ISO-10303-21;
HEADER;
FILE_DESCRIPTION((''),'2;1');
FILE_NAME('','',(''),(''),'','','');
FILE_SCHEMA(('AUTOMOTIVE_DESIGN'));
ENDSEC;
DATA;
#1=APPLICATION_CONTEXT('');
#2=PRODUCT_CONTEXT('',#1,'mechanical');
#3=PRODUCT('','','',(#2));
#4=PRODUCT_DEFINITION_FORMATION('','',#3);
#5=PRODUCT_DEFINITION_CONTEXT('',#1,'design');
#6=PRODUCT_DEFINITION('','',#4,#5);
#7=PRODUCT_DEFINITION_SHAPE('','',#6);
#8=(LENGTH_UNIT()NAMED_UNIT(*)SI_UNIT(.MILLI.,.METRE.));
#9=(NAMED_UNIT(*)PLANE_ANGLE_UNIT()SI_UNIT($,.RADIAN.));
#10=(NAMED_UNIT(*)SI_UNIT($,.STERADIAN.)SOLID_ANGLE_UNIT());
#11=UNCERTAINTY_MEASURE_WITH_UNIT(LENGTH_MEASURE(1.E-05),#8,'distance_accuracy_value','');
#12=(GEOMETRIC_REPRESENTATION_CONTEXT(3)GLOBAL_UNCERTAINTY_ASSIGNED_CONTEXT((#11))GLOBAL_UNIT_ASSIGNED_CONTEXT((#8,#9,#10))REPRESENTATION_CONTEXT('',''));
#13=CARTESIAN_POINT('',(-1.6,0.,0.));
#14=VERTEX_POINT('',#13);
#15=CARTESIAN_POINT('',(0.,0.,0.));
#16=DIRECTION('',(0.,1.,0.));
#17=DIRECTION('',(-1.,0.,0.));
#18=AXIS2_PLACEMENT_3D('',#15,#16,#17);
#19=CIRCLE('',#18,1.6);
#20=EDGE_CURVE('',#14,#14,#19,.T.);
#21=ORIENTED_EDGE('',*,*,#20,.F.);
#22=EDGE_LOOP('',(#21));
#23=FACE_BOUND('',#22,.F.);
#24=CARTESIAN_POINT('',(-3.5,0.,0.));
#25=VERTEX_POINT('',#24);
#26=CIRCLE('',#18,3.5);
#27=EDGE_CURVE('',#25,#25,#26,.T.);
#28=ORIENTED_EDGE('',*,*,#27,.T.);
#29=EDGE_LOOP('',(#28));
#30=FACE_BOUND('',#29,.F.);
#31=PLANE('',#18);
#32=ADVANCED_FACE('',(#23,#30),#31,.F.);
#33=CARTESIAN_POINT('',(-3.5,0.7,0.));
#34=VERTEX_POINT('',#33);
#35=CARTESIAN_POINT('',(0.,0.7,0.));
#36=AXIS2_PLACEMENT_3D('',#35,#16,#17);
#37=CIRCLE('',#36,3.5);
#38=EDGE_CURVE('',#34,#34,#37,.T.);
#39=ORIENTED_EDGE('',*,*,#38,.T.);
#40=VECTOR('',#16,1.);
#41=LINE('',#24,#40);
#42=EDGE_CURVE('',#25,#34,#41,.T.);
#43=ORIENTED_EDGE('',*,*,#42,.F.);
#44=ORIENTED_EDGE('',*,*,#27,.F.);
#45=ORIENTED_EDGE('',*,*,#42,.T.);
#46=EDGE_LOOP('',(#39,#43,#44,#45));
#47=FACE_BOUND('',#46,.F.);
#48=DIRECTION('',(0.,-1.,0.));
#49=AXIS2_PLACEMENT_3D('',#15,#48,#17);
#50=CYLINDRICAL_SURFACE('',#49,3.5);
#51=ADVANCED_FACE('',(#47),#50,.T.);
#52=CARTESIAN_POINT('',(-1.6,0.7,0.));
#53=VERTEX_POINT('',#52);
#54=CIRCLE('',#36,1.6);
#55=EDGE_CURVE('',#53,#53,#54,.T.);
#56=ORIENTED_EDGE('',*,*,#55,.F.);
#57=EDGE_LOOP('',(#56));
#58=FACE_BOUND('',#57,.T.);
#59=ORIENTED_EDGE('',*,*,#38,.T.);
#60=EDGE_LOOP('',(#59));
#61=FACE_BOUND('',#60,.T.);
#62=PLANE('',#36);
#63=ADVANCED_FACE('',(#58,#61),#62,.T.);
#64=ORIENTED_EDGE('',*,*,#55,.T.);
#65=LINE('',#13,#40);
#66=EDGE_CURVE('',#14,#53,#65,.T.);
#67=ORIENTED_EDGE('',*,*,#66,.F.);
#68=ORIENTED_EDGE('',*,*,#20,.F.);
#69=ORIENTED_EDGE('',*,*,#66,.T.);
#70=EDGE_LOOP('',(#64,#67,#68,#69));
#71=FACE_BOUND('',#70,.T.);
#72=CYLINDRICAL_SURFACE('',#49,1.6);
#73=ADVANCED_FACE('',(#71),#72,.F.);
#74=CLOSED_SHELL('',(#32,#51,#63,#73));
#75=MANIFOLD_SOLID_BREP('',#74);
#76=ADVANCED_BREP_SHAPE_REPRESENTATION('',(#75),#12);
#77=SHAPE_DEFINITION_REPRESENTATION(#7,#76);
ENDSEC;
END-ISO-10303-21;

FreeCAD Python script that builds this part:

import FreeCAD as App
import Part
import Sketcher
from FreeCAD import Vector
Q = App.Units.Quantity

doc = App.newDocument("Part")
body = doc.addObject("PartDesign::Body", "Body")

# Sketch on XZ plane
sketch1 = body.newObject("Sketcher::SketchObject", "Sketch")
sketch1.AttachmentSupport = (doc.getObject("XZ_Plane"), [""])
sketch1.MapMode = "FlatFace"
sketch1.addGeometry([
    Part.Circle(Vector(0, 0, 0), Vector(0, 0, 1), 3.5),
    Part.Circle(Vector(0, 0, 0), Vector(0, 0, 1), 1.6),
], False)
sketch1.addConstraint([
    Sketcher.Constraint("Coincident", 0, 3, -1, 1),
    Sketcher.Constraint("Coincident", 1, 3, -1, 1),
    Sketcher.Constraint("Diameter", 0, Q("7 mm")),
    Sketcher.Constraint("Diameter", 1, Q("3.2 mm")),
])
pad1 = body.newObject("PartDesign::Pad", "Pad")
pad1.Profile = sketch1
pad1.Length = 0.7
pad1.Reversed = True

doc.recompute()
